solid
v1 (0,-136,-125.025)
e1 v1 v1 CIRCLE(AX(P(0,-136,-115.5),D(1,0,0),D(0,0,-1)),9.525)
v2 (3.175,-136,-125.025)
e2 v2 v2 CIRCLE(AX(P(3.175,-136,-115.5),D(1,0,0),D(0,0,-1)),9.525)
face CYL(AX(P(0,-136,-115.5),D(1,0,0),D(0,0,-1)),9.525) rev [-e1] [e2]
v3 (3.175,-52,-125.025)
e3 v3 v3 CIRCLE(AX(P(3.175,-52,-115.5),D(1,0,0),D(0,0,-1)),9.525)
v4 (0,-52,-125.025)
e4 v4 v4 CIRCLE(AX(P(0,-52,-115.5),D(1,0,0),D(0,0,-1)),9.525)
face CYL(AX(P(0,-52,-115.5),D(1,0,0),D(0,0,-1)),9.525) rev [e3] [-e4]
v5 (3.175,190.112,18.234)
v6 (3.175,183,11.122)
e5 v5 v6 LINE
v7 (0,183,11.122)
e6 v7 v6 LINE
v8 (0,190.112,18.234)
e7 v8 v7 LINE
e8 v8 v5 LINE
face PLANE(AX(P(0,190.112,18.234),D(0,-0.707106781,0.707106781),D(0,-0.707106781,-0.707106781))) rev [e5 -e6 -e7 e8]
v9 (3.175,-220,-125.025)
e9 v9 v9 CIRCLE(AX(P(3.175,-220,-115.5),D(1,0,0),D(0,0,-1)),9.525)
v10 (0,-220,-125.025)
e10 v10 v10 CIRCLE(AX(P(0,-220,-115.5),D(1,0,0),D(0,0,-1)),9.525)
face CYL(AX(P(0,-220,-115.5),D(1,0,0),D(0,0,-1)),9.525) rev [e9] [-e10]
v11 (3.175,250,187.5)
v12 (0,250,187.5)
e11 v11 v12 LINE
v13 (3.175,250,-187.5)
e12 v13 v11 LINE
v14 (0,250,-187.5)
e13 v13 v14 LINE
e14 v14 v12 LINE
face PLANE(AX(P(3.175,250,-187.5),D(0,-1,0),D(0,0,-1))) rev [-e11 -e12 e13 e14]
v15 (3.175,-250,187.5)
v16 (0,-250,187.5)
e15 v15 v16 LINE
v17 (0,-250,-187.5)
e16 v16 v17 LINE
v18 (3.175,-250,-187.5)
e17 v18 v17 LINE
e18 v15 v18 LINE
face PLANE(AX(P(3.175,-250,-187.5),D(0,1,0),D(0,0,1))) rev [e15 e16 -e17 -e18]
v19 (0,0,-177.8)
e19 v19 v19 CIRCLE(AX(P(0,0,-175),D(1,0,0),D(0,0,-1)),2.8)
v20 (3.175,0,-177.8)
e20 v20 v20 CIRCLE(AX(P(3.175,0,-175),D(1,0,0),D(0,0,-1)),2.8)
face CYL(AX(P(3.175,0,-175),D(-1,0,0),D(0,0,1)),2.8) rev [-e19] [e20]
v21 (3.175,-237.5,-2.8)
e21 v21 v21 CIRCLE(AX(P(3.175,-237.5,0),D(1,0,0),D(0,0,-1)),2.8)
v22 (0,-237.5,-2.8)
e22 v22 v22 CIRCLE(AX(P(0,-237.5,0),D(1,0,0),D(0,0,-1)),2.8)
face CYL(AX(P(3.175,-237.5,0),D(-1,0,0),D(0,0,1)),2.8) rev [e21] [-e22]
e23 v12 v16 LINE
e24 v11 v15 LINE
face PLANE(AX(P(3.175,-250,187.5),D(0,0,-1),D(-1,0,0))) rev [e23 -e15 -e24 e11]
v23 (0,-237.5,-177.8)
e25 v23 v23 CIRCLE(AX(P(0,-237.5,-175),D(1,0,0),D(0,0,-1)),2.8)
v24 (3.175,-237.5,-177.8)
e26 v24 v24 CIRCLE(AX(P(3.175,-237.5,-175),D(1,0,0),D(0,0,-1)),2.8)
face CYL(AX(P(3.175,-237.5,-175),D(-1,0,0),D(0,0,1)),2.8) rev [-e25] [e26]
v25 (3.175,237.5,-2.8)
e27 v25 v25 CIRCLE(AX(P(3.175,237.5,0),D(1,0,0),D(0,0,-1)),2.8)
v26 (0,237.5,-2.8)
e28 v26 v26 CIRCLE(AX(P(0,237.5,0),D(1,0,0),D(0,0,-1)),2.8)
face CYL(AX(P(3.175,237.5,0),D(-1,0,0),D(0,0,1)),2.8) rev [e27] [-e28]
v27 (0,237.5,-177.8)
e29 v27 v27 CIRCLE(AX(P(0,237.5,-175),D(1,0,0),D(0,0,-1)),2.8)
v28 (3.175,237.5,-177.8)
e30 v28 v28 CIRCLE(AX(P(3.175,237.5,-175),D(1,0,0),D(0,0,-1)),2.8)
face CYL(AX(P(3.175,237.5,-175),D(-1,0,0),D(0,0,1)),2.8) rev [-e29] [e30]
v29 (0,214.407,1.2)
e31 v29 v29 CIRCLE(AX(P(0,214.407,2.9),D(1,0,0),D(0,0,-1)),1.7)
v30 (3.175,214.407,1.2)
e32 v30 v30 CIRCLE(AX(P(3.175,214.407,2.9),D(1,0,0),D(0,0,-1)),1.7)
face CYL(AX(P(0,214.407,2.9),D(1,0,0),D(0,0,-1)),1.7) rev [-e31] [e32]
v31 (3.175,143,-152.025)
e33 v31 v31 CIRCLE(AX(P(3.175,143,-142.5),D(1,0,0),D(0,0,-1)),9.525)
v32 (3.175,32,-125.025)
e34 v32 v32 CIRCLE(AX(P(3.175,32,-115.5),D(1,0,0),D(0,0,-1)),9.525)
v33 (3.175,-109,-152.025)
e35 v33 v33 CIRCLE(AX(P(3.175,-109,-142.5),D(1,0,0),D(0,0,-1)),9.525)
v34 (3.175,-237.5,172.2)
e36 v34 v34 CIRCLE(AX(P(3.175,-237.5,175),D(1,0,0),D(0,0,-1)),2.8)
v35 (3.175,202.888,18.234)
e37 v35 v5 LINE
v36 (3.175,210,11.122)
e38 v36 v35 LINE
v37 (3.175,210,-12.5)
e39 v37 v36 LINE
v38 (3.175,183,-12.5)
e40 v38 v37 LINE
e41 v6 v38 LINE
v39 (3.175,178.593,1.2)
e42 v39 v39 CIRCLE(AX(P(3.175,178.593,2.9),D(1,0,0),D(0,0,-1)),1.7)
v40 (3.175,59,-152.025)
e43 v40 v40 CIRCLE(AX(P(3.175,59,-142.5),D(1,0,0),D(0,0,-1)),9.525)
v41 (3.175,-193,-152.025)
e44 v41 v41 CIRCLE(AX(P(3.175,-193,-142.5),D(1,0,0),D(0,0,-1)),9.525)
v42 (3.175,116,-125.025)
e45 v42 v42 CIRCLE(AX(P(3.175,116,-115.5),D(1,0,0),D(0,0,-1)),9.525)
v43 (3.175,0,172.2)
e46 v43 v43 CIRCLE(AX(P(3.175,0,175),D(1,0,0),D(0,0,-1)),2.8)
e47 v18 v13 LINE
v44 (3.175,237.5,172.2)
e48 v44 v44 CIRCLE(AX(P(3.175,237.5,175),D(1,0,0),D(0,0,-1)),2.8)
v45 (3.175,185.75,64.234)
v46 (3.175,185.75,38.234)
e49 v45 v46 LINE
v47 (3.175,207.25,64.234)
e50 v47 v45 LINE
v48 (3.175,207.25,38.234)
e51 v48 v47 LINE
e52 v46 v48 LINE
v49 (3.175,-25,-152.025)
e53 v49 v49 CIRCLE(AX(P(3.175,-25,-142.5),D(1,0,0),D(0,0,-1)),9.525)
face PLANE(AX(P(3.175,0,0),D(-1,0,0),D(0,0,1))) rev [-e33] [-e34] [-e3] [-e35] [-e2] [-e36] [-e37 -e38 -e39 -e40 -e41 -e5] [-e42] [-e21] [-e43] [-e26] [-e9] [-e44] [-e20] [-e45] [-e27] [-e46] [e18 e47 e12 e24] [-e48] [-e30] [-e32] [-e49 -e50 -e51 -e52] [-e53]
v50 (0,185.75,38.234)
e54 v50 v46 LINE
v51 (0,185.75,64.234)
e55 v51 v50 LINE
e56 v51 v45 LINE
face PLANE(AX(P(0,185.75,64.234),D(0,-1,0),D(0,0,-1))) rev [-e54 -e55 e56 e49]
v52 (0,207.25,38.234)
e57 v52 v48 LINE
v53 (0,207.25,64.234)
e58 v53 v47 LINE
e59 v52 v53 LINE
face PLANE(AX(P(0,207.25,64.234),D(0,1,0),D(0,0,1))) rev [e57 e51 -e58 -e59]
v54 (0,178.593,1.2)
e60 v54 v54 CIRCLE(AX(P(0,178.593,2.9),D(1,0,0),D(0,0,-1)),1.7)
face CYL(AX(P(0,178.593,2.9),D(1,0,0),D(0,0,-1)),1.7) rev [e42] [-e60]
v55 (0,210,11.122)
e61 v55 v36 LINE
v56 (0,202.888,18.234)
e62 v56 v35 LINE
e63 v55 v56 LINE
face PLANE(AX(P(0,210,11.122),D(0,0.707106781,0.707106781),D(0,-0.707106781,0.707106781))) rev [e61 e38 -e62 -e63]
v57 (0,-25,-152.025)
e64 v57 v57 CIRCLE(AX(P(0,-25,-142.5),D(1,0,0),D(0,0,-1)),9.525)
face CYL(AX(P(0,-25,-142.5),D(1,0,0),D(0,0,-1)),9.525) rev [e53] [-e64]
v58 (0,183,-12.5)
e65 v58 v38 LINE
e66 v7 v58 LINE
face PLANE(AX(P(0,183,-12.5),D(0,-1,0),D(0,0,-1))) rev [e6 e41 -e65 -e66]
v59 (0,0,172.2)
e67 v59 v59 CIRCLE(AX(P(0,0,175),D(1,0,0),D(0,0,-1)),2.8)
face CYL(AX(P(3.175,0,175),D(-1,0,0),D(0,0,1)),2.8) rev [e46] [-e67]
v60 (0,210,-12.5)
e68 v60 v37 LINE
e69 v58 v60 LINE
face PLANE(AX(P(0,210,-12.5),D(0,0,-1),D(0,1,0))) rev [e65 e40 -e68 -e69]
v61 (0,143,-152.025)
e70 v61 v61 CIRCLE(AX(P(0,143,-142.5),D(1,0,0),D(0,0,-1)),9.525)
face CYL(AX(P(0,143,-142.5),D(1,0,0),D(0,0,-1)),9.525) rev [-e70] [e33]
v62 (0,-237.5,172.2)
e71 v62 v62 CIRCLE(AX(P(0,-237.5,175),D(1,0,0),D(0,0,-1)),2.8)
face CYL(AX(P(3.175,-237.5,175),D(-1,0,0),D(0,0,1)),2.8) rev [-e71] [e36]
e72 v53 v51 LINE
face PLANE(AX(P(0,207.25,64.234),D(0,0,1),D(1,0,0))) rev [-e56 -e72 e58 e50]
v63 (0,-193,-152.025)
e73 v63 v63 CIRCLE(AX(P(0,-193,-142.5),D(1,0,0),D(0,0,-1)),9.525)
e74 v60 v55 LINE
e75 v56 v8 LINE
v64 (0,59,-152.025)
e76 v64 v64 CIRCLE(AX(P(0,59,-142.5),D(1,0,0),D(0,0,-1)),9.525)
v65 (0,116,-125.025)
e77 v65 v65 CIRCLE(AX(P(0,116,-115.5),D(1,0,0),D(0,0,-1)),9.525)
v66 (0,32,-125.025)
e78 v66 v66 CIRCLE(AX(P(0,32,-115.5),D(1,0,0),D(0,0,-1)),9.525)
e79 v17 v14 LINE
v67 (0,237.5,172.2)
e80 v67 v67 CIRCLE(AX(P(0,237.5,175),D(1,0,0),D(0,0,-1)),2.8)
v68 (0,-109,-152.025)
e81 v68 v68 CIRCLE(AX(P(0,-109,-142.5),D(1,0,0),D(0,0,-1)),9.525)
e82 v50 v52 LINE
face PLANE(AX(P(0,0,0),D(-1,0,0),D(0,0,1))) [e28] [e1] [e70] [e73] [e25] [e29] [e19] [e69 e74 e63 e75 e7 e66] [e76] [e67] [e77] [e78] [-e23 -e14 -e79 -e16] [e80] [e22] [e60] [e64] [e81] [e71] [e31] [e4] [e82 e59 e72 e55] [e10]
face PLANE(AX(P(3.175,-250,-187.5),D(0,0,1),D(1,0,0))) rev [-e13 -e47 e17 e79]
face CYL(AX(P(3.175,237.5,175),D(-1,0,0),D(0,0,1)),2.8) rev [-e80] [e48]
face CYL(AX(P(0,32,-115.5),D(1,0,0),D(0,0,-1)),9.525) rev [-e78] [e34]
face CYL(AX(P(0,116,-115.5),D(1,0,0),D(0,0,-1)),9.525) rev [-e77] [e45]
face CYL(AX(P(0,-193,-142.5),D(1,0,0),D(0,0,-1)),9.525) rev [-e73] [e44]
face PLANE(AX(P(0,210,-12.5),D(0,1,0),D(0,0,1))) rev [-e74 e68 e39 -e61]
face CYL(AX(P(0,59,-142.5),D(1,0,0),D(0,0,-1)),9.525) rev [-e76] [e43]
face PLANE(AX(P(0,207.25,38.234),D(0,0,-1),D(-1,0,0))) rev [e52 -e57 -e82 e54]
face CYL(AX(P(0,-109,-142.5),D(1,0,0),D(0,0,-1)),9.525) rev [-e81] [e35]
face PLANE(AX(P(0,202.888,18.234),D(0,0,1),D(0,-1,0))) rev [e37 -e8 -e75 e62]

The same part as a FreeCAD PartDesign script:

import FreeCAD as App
import Part
import Sketcher

V = App.Vector
Q = App.Units.Quantity

doc = App.newDocument("Part")
params = doc.addObject("Spreadsheet::Sheet", "Params")
for row, (alias, value) in enumerate([
    ("sketch1_diameter", "5.6 mm"),
    ("sketch1_width", "500 mm"),
    ("sketch1_height", "375 mm"),
    ("pad1_length", "3.175 mm"),
    ("sketch2_diameter", "19.05 mm"),
    ("sketch3_width", "27 mm"),
    ("sketch4_diameter", "3.4 mm"),
    ("sketch5_height", "26 mm"),
    ("sketch5_width", "21.5 mm"),
], start=1):
    params.set(f"A{row}", alias)
    params.set(f"B{row}", "=" + value)
    params.setAlias(f"B{row}", alias)

body = doc.addObject("PartDesign::Body", "Body")

# Sketch on YZ plane
sketch1 = body.newObject("Sketcher::SketchObject", "Sketch")
sketch1.AttachmentSupport = (doc.getObject("YZ_Plane"), [""])
sketch1.MapMode = "FlatFace"
sketch1.addGeometry([
    Part.LineSegment(V(-250, 187.5, 0), V(-250, -187.5, 0)),  # 0
    Part.LineSegment(V(-250, -187.5, 0), V(250, -187.5, 0)),  # 1
    Part.LineSegment(V(250, -187.5, 0), V(250, 187.5, 0)),  # 2
    Part.LineSegment(V(250, 187.5, 0), V(-250, 187.5, 0)),  # 3
    Part.Circle(V(-237.5, -175, 0), V(0, 0, 1), 2.8),  # 4
    Part.Circle(V(0, -175, 0), V(0, 0, 1), 2.8),  # 5
    Part.Circle(V(237.5, -175, 0), V(0, 0, 1), 2.8),  # 6
    Part.Circle(V(-237.5, 0, 0), V(0, 0, 1), 2.8),  # 7
    Part.Circle(V(-237.5, 175, 0), V(0, 0, 1), 2.8),  # 8
    Part.Circle(V(0, 175, 0), V(0, 0, 1), 2.8),  # 9
    Part.Circle(V(237.5, 0, 0), V(0, 0, 1), 2.8),  # 10
    Part.Circle(V(237.5, 175, 0), V(0, 0, 1), 2.8),  # 11
], False)
sketch1.addConstraint([
    Sketcher.Constraint("Coincident", 0, 2, 1, 1),
    Sketcher.Constraint("Coincident", 1, 2, 2, 1),
    Sketcher.Constraint("Coincident", 2, 2, 3, 1),
    Sketcher.Constraint("Coincident", 3, 2, 0, 1),
    Sketcher.Constraint("Vertical", 0),
    Sketcher.Constraint("Horizontal", 1),
    Sketcher.Constraint("Vertical", 2),
    Sketcher.Constraint("Horizontal", 3),
    Sketcher.Constraint("Equal", 4, 5),
    Sketcher.Constraint("Equal", 5, 6),
    Sketcher.Constraint("Equal", 6, 7),
    Sketcher.Constraint("Equal", 7, 8),
    Sketcher.Constraint("Equal", 8, 9),
    Sketcher.Constraint("Equal", 9, 10),
    Sketcher.Constraint("Equal", 10, 11),
    Sketcher.Constraint("Symmetric", 6, 3, 8, 3, -1, 1),
    Sketcher.Constraint("Symmetric", 5, 3, 9, 3, -1, 1),
    Sketcher.Constraint("Symmetric", 7, 3, 10, 3, -1, 1),
    Sketcher.Constraint("Symmetric", 4, 3, 11, 3, -1, 1),
    Sketcher.Constraint("Symmetric", 0, 2, 2, 2, -1, 1),
    Sketcher.Constraint("Symmetric", 4, 3, 6, 3, -2),
    Sketcher.Constraint("PointOnObject", 5, 3, -2),
    Sketcher.Constraint("PointOnObject", 7, 3, -1),
    Sketcher.Constraint("Horizontal", 4, 3, 5, 3),
    Sketcher.Constraint("Vertical", 4, 3, 7, 3),
    Sketcher.Constraint("Diameter", 4, Q("5.6 mm")),
    Sketcher.Constraint("DistanceX", 1, 1, 1, 2, Q("500 mm")),
    Sketcher.Constraint("DistanceY", 0, 2, 0, 1, Q("375 mm")),
    Sketcher.Constraint("DistanceY", 4, 3, -1, 1, Q("175 mm")),
    Sketcher.Constraint("DistanceX", 4, 3, 6, 3, Q("475 mm")),
])
sketch1.setExpression("Constraints[25]", "Params.sketch1_diameter")
sketch1.setExpression("Constraints[26]", "Params.sketch1_width")
sketch1.setExpression("Constraints[27]", "Params.sketch1_height")
pad1 = body.newObject("PartDesign::Pad", "Pad")
pad1.Profile = sketch1
pad1.setExpression("Length", "Params.pad1_length")

# Sketch on YZ plane
sketch2 = body.newObject("Sketcher::SketchObject", "Sketch001")
sketch2.AttachmentSupport = (doc.getObject("YZ_Plane"), [""])
sketch2.MapMode = "FlatFace"
sketch2.AttachmentOffset = App.Placement(V(0, 0, 3.175), App.Rotation())
sketch2.addGeometry([
    Part.Circle(V(-220, -116, 0), V(0, 0, 1), 10),  # 0
    Part.Circle(V(-193, -142, 0), V(0, 0, 1), 10),  # 1
    Part.Circle(V(-136, -116, 0), V(0, 0, 1), 10),  # 2
    Part.Circle(V(-109, -142, 0), V(0, 0, 1), 10),  # 3
    Part.Circle(V(-52, -116, 0), V(0, 0, 1), 10),  # 4
    Part.Circle(V(-25, -142, 0), V(0, 0, 1), 10),  # 5
    Part.Circle(V(32, -116, 0), V(0, 0, 1), 10),  # 6
    Part.Circle(V(59, -142, 0), V(0, 0, 1), 10),  # 7
    Part.Circle(V(116, -116, 0), V(0, 0, 1), 10),  # 8
    Part.Circle(V(143, -142, 0), V(0, 0, 1), 10),  # 9
], False)
sketch2.addConstraint([
    Sketcher.Constraint("Equal", 0, 1),
    Sketcher.Constraint("Equal", 1, 2),
    Sketcher.Constraint("Equal", 2, 3),
    Sketcher.Constraint("Equal", 3, 4),
    Sketcher.Constraint("Equal", 4, 5),
    Sketcher.Constraint("Equal", 5, 6),
    Sketcher.Constraint("Equal", 6, 7),
    Sketcher.Constraint("Equal", 7, 8),
    Sketcher.Constraint("Equal", 8, 9),
    Sketcher.Constraint("Horizontal", 0, 3, 2, 3),
    Sketcher.Constraint("Horizontal", 1, 3, 3, 3),
    Sketcher.Constraint("Horizontal", 2, 3, 4, 3),
    Sketcher.Constraint("Horizontal", 3, 3, 5, 3),
    Sketcher.Constraint("Horizontal", 4, 3, 6, 3),
    Sketcher.Constraint("Horizontal", 5, 3, 7, 3),
    Sketcher.Constraint("Horizontal", 6, 3, 8, 3),
    Sketcher.Constraint("Horizontal", 7, 3, 9, 3),
    Sketcher.Constraint("Diameter", 0, Q("19.05 mm")),
    Sketcher.Constraint("DistanceX", 0, 3, -1, 1, Q("220 mm")),
    Sketcher.Constraint("DistanceX", 1, 3, -1, 1, Q("193 mm")),
    Sketcher.Constraint("DistanceX", 2, 3, -1, 1, Q("136 mm")),
    Sketcher.Constraint("DistanceX", 3, 3, -1, 1, Q("109 mm")),
    Sketcher.Constraint("DistanceX", 4, 3, -1, 1, Q("52 mm")),
    Sketcher.Constraint("DistanceX", 5, 3, -1, 1, Q("25 mm")),
    Sketcher.Constraint("DistanceX", -1, 1, 6, 3, Q("32 mm")),
    Sketcher.Constraint("DistanceX", -1, 1, 7, 3, Q("59 mm")),
    Sketcher.Constraint("DistanceX", -1, 1, 8, 3, Q("116 mm")),
    Sketcher.Constraint("DistanceX", -1, 1, 9, 3, Q("143 mm")),
    Sketcher.Constraint("DistanceY", 1, 3, 0, 3, Q("27 mm")),
    Sketcher.Constraint("DistanceY", 0, 3, -1, 1, Q("115.5 mm")),
])
sketch2.setExpression("Constraints[17]", "Params.sketch2_diameter")
pocket1 = body.newObject("PartDesign::Pocket", "Pocket")
pocket1.Profile = sketch2
pocket1.Type = "ThroughAll"

# Sketch on YZ plane
sketch3 = body.newObject("Sketcher::SketchObject", "Sketch002")
sketch3.AttachmentSupport = (doc.getObject("YZ_Plane"), [""])
sketch3.MapMode = "FlatFace"
sketch3.AttachmentOffset = App.Placement(V(0, 0, 3.175), App.Rotation())
sketch3.addGeometry([
    Part.LineSegment(V(183, -12, 0), V(210, -12, 0)),  # 0
    Part.LineSegment(V(210, -12, 0), V(210, 11, 0)),  # 1
    Part.LineSegment(V(210, 11, 0), V(203, 18, 0)),  # 2
    Part.LineSegment(V(203, 18, 0), V(190, 18, 0)),  # 3
    Part.LineSegment(V(190, 18, 0), V(183, 11, 0)),  # 4
    Part.LineSegment(V(183, 11, 0), V(183, -12, 0)),  # 5
], False)
sketch3.addConstraint([
    Sketcher.Constraint("Coincident", 0, 2, 1, 1),
    Sketcher.Constraint("Coincident", 1, 2, 2, 1),
    Sketcher.Constraint("Coincident", 2, 2, 3, 1),
    Sketcher.Constraint("Coincident", 3, 2, 4, 1),
    Sketcher.Constraint("Coincident", 4, 2, 5, 1),
    Sketcher.Constraint("Coincident", 5, 2, 0, 1),
    Sketcher.Constraint("Horizontal", 0),
    Sketcher.Constraint("Vertical", 1),
    Sketcher.Constraint("Horizontal", 3),
    Sketcher.Constraint("Vertical", 5),
    Sketcher.Constraint("Perpendicular", 2, 4),
    Sketcher.Constraint("Horizontal", 1, 2, 4, 2),
    Sketcher.Constraint("Equal", 2, 4),
    Sketcher.Constraint("DistanceX", 0, 1, 0, 2, Q("27 mm")),
    Sketcher.Constraint("DistanceX", -1, 1, 0, 2, Q("210 mm")),
    Sketcher.Constraint("DistanceY", 0, 2, -1, 1, Q("12.5 mm")),
    Sketcher.Constraint("DistanceX", 3, 2, 3, 1, Q("12.776 mm")),
    Sketcher.Constraint("DistanceY", 1, 1, 1, 2, Q("23.622 mm")),
])
sketch3.setExpression("Constraints[13]", "Params.sketch3_width")
pocket2 = body.newObject("PartDesign::Pocket", "Pocket001")
pocket2.Profile = sketch3
pocket2.Type = "ThroughAll"

# Sketch on YZ plane
sketch4 = body.newObject("Sketcher::SketchObject", "Sketch003")
sketch4.AttachmentSupport = (doc.getObject("YZ_Plane"), [""])
sketch4.MapMode = "FlatFace"
sketch4.AttachmentOffset = App.Placement(V(0, 0, 3.175), App.Rotation())
sketch4.addGeometry([
    Part.Circle(V(178.6, 2.9, 0), V(0, 0, 1), 1.7),
    Part.Circle(V(214.4, 2.9, 0), V(0, 0, 1), 1.7),
], False)
sketch4.addConstraint([
    Sketcher.Constraint("Equal", 0, 1),
    Sketcher.Constraint("Horizontal", 0, 3, 1, 3),
    Sketcher.Constraint("Diameter", 0, Q("3.4 mm")),
    Sketcher.Constraint("DistanceY", -1, 1, 0, 3, Q("2.9 mm")),
    Sketcher.Constraint("DistanceX", -1, 1, 0, 3, Q("178.593 mm")),
    Sketcher.Constraint("DistanceX", -1, 1, 1, 3, Q("214.407 mm")),
])
sketch4.setExpression("Constraints[2]", "Params.sketch4_diameter")
pocket3 = body.newObject("PartDesign::Pocket", "Pocket002")
pocket3.Profile = sketch4
pocket3.Type = "ThroughAll"

# Sketch on YZ plane
sketch5 = body.newObject("Sketcher::SketchObject", "Sketch004")
sketch5.AttachmentSupport = (doc.getObject("YZ_Plane"), [""])
sketch5.MapMode = "FlatFace"
sketch5.AttachmentOffset = App.Placement(V(0, 0, 3.175), App.Rotation())
sketch5.addGeometry([
    Part.LineSegment(V(186, 64, 0), V(186, 38, 0)),
    Part.LineSegment(V(186, 38, 0), V(207, 38, 0)),
    Part.LineSegment(V(207, 38, 0), V(207, 64, 0)),
    Part.LineSegment(V(207, 64, 0), V(186, 64, 0)),
], False)
sketch5.addConstraint([
    Sketcher.Constraint("Coincident", 0, 2, 1, 1),
    Sketcher.Constraint("Coincident", 1, 2, 2, 1),
    Sketcher.Constraint("Coincident", 2, 2, 3, 1),
    Sketcher.Constraint("Coincident", 3, 2, 0, 1),
    Sketcher.Constraint("Vertical", 0),
    Sketcher.Constraint("Horizontal", 1),
    Sketcher.Constraint("Vertical", 2),
    Sketcher.Constraint("Horizontal", 3),
    Sketcher.Constraint("DistanceY", 0, 2, 0, 1, Q("26 mm")),
    Sketcher.Constraint("DistanceX", 1, 1, 1, 2, Q("21.5 mm")),
    Sketcher.Constraint("DistanceX", -1, 1, 0, 2, Q("185.75 mm")),
    Sketcher.Constraint("DistanceY", -1, 1, 0, 2, Q("38.234 mm")),
])
sketch5.setExpression("Constraints[8]", "Params.sketch5_height")
sketch5.setExpression("Constraints[9]", "Params.sketch5_width")
pocket4 = body.newObject("PartDesign::Pocket", "Pocket003")
pocket4.Profile = sketch5
pocket4.Type = "ThroughAll"

doc.recompute()
